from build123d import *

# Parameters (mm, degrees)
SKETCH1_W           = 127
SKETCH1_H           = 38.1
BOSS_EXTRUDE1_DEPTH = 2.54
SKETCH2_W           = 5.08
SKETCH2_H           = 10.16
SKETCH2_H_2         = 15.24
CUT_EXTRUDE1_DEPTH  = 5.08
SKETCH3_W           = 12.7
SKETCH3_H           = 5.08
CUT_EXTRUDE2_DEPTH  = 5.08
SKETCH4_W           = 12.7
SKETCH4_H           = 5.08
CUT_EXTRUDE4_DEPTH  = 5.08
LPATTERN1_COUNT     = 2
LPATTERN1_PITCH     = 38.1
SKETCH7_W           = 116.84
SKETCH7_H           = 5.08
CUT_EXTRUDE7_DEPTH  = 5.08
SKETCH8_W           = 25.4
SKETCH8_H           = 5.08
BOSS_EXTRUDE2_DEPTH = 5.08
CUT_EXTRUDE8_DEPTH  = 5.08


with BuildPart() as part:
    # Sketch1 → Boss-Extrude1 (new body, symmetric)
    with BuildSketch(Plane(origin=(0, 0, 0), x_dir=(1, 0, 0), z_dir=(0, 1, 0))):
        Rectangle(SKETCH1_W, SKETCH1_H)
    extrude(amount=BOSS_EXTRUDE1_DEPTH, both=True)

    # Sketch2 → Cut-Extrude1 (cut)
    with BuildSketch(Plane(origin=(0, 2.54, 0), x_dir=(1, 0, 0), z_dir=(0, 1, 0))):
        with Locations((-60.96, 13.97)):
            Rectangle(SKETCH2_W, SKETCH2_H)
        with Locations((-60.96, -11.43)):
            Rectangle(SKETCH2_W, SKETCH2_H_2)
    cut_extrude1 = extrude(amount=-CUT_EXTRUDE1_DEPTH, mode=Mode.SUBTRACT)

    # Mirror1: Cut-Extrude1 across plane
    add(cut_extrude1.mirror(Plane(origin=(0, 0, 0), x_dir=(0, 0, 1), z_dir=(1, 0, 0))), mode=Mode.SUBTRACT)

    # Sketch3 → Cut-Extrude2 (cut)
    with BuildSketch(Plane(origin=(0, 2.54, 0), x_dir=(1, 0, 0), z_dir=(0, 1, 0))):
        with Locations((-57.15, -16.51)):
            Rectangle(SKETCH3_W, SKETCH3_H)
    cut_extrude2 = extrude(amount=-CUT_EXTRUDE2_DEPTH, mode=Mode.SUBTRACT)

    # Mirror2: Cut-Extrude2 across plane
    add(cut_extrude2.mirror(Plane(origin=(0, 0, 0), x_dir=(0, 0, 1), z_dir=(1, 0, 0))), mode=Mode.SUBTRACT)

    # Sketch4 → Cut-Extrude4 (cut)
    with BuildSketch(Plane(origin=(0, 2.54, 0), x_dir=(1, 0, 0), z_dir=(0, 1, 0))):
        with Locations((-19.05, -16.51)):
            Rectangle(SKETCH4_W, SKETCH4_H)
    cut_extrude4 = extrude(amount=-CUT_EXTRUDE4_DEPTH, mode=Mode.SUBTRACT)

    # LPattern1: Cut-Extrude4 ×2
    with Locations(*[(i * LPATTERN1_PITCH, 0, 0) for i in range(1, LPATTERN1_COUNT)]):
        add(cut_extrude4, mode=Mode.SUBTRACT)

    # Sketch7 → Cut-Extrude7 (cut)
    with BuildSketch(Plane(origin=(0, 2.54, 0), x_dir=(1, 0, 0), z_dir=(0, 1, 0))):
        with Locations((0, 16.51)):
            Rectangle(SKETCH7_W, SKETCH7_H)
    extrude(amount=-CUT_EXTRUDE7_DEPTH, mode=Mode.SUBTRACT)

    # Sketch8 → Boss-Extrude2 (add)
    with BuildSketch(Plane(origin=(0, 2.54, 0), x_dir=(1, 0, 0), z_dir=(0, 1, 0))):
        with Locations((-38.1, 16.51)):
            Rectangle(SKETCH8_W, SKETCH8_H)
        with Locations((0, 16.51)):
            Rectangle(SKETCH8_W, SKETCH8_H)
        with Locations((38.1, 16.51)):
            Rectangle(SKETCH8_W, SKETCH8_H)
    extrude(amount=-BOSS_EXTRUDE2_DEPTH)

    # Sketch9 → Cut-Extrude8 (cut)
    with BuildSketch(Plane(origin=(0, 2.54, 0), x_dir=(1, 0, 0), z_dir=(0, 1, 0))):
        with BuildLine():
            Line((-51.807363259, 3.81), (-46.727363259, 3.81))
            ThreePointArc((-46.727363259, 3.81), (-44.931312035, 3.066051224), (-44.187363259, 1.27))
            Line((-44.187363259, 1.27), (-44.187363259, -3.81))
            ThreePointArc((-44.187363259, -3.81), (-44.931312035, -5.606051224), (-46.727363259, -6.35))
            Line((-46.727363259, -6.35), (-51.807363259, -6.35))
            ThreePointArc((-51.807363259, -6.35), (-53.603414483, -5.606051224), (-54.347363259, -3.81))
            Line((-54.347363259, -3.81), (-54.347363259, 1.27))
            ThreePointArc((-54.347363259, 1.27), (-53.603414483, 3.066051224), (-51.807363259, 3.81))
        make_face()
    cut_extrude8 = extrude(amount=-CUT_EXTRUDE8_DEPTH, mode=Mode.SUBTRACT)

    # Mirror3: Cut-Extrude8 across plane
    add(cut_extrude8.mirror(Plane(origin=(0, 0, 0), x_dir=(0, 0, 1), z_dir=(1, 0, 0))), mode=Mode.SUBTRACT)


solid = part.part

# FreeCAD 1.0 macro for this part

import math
import FreeCAD as App
import Part
import Sketcher

V = App.Vector
Q = App.Units.Quantity

doc = App.newDocument("Part")
body = doc.addObject("PartDesign::Body", "Body")

sketch1 = body.newObject("Sketcher::SketchObject", "Sketch")
sketch1.AttachmentSupport = (doc.getObject("XZ_Plane"), [""])
sketch1.MapMode = "FlatFace"
sketch1.addGeometry(Part.LineSegment(V(-64, -19, 0), V(-64, 19, 0)), False)
sketch1.addGeometry(Part.LineSegment(V(-64, 19, 0), V(64, 19, 0)), False)
sketch1.addGeometry(Part.LineSegment(V(64, 19, 0), V(64, -19, 0)), False)
sketch1.addGeometry(Part.LineSegment(V(64, -19, 0), V(-64, -19, 0)), False)
sketch1.addConstraint(Sketcher.Constraint("Coincident", 0, 2, 1, 1))
sketch1.addConstraint(Sketcher.Constraint("Coincident", 1, 2, 2, 1))
sketch1.addConstraint(Sketcher.Constraint("Coincident", 2, 2, 3, 1))
sketch1.addConstraint(Sketcher.Constraint("Coincident", 3, 2, 0, 1))
sketch1.addConstraint(Sketcher.Constraint("Vertical", 0))
sketch1.addConstraint(Sketcher.Constraint("Horizontal", 1))
sketch1.addConstraint(Sketcher.Constraint("Vertical", 2))
sketch1.addConstraint(Sketcher.Constraint("Horizontal", 3))
sketch1.addConstraint(Sketcher.Constraint("Symmetric", 0, 2, 2, 2, -1, 1))
sketch1.addConstraint(Sketcher.Constraint("DistanceX", 1, 1, 1, 2, Q("5 in")))
sketch1.addConstraint(Sketcher.Constraint("DistanceY", 0, 1, 0, 2, Q("1.5 in")))
pad1 = body.newObject("PartDesign::Pad", "Pad")
pad1.Profile = sketch1
pad1.Length = Q("0.2 in")
pad1.Midplane = True

sketch2 = body.newObject("Sketcher::SketchObject", "Sketch001")
sketch2.AttachmentSupport = (doc.getObject("XZ_Plane"), [""])
sketch2.MapMode = "FlatFace"
sketch2.AttachmentOffset = App.Placement(V(0, 0, -0.1 * 25.4), App.Rotation())
sketch2.addGeometry(Part.LineSegment(V(-64, -19, 0), V(-64, -9, 0)), False)
sketch2.addGeometry(Part.LineSegment(V(-64, -9, 0), V(-58, -9, 0)), False)
sketch2.addGeometry(Part.LineSegment(V(-58, -9, 0), V(-58, -19, 0)), False)
sketch2.addGeometry(Part.LineSegment(V(-58, -19, 0), V(-64, -19, 0)), False)
sketch2.addGeometry(Part.LineSegment(V(-64, 4, 0), V(-64, 19, 0)), False)
sketch2.addGeometry(Part.LineSegment(V(-64, 19, 0), V(-58, 19, 0)), False)
sketch2.addGeometry(Part.LineSegment(V(-58, 19, 0), V(-58, 4, 0)), False)
sketch2.addGeometry(Part.LineSegment(V(-58, 4, 0), V(-64, 4, 0)), False)
sketch2.addConstraint(Sketcher.Constraint("Coincident", 0, 2, 1, 1))
sketch2.addConstraint(Sketcher.Constraint("Coincident", 1, 2, 2, 1))
sketch2.addConstraint(Sketcher.Constraint("Coincident", 2, 2, 3, 1))
sketch2.addConstraint(Sketcher.Constraint("Coincident", 3, 2, 0, 1))
sketch2.addConstraint(Sketcher.Constraint("Coincident", 4, 2, 5, 1))
sketch2.addConstraint(Sketcher.Constraint("Coincident", 5, 2, 6, 1))
sketch2.addConstraint(Sketcher.Constraint("Coincident", 6, 2, 7, 1))
sketch2.addConstraint(Sketcher.Constraint("Coincident", 7, 2, 4, 1))
sketch2.addConstraint(Sketcher.Constraint("Vertical", 0))
sketch2.addConstraint(Sketcher.Constraint("Horizontal", 1))
sketch2.addConstraint(Sketcher.Constraint("Vertical", 2))
sketch2.addConstraint(Sketcher.Constraint("Horizontal", 3))
sketch2.addConstraint(Sketcher.Constraint("Vertical", 4))
sketch2.addConstraint(Sketcher.Constraint("Horizontal", 5))
sketch2.addConstraint(Sketcher.Constraint("Vertical", 6))
sketch2.addConstraint(Sketcher.Constraint("Horizontal", 7))
sketch2.addConstraint(Sketcher.Constraint("Symmetric", 3, 2, 4, 2, -1))
sketch2.addConstraint(Sketcher.Constraint("Vertical", 2, 2, 5, 2))
sketch2.addConstraint(Sketcher.Constraint("DistanceX", 1, 1, 1, 2, Q("0.2 in")))
sketch2.addConstraint(Sketcher.Constraint("DistanceY", 0, 1, 0, 2, Q("0.4 in")))
sketch2.addConstraint(Sketcher.Constraint("DistanceY", 4, 1, 4, 2, Q("0.6 in")))
sketch2.addConstraint(Sketcher.Constraint("DistanceX", 0, 2, -1, 1, Q("2.5 in")))
sketch2.addConstraint(Sketcher.Constraint("DistanceY", 0, 2, 4, 2, Q("1.1 in")))
pocket1 = body.newObject("PartDesign::Pocket", "Pocket")
pocket1.Profile = sketch2
pocket1.Length = Q("0.2 in")
pocket1.Reversed = True
doc.recompute()

mirrored = body.newObject("PartDesign::Mirrored", "Mirrored")
mirrored.Originals = [pocket1]
mirrored.MirrorPlane = (doc.getObject("YZ_Plane"), [""])
body.Tip = mirrored

sketch3 = body.newObject("Sketcher::SketchObject", "Sketch002")
sketch3.AttachmentSupport = (doc.getObject("XZ_Plane"), [""])
sketch3.MapMode = "FlatFace"
sketch3.AttachmentOffset = App.Placement(V(0, 0, -0.1 * 25.4), App.Rotation())
sketch3.addGeometry(Part.LineSegment(V(-64, 14, 0), V(-64, 19, 0)), False)
sketch3.addGeometry(Part.LineSegment(V(-64, 19, 0), V(-51, 19, 0)), False)
sketch3.addGeometry(Part.LineSegment(V(-51, 19, 0), V(-51, 14, 0)), False)
sketch3.addGeometry(Part.LineSegment(V(-51, 14, 0), V(-64, 14, 0)), False)
sketch3.addConstraint(Sketcher.Constraint("Coincident", 0, 2, 1, 1))
sketch3.addConstraint(Sketcher.Constraint("Coincident", 1, 2, 2, 1))
sketch3.addConstraint(Sketcher.Constraint("Coincident", 2, 2, 3, 1))
sketch3.addConstraint(Sketcher.Constraint("Coincident", 3, 2, 0, 1))
sketch3.addConstraint(Sketcher.Constraint("Vertical", 0))
sketch3.addConstraint(Sketcher.Constraint("Horizontal", 1))
sketch3.addConstraint(Sketcher.Constraint("Vertical", 2))
sketch3.addConstraint(Sketcher.Constraint("Horizontal", 3))
sketch3.addConstraint(Sketcher.Constraint("DistanceX", 1, 1, 1, 2, Q("0.5 in")))
sketch3.addConstraint(Sketcher.Constraint("DistanceY", 0, 1, 0, 2, Q("0.2 in")))
sketch3.addConstraint(Sketcher.Constraint("DistanceX", 1, 2, -1, 1, Q("2 in")))
sketch3.addConstraint(Sketcher.Constraint("DistanceY", -1, 1, 0, 2, Q("0.75 in")))
pocket2 = body.newObject("PartDesign::Pocket", "Pocket001")
pocket2.Profile = sketch3
pocket2.Length = Q("0.2 in")
pocket2.Reversed = True
doc.recompute()

mirrored2 = body.newObject("PartDesign::Mirrored", "Mirrored001")
mirrored2.Originals = [pocket2]
mirrored2.MirrorPlane = (doc.getObject("YZ_Plane"), [""])
body.Tip = mirrored2

sketch4 = body.newObject("Sketcher::SketchObject", "Sketch003")
sketch4.AttachmentSupport = (doc.getObject("XZ_Plane"), [""])
sketch4.MapMode = "FlatFace"
sketch4.AttachmentOffset = App.Placement(V(0, 0, -0.1 * 25.4), App.Rotation())
sketch4.addGeometry(Part.LineSegment(V(-25, 14, 0), V(-25, 19, 0)), False)
sketch4.addGeometry(Part.LineSegment(V(-25, 19, 0), V(-13, 19, 0)), False)
sketch4.addGeometry(Part.LineSegment(V(-13, 19, 0), V(-13, 14, 0)), False)
sketch4.addGeometry(Part.LineSegment(V(-13, 14, 0), V(-25, 14, 0)), False)
sketch4.addConstraint(Sketcher.Constraint("Coincident", 0, 2, 1, 1))
sketch4.addConstraint(Sketcher.Constraint("Coincident", 1, 2, 2, 1))
sketch4.addConstraint(Sketcher.Constraint("Coincident", 2, 2, 3, 1))
sketch4.addConstraint(Sketcher.Constraint("Coincident", 3, 2, 0, 1))
sketch4.addConstraint(Sketcher.Constraint("Vertical", 0))
sketch4.addConstraint(Sketcher.Constraint("Horizontal", 1))
sketch4.addConstraint(Sketcher.Constraint("Vertical", 2))
sketch4.addConstraint(Sketcher.Constraint("Horizontal", 3))
sketch4.addConstraint(Sketcher.Constraint("DistanceX", 1, 1, 1, 2, Q("0.5 in")))
sketch4.addConstraint(Sketcher.Constraint("DistanceY", 0, 1, 0, 2, Q("0.2 in")))
sketch4.addConstraint(Sketcher.Constraint("DistanceX", 0, 2, -1, 1, Q("1 in")))
sketch4.addConstraint(Sketcher.Constraint("DistanceY", -1, 1, 0, 2, Q("0.75 in")))
pocket3 = body.newObject("PartDesign::Pocket", "Pocket002")
pocket3.Profile = sketch4
pocket3.Length = Q("0.2 in")
pocket3.Reversed = True
doc.recompute()

linearpattern = body.newObject("PartDesign::LinearPattern", "LinearPattern")
linearpattern.Originals = [pocket3]
linearpattern.Direction = (doc.getObject("X_Axis"), [""])
linearpattern.Mode = "offset"
linearpattern.Offset = Q("1.5 in")
linearpattern.Occurrences = 2
body.Tip = linearpattern

sketch5 = body.newObject("Sketcher::SketchObject", "Sketch004")
sketch5.AttachmentSupport = (doc.getObject("XZ_Plane"), [""])
sketch5.MapMode = "FlatFace"
sketch5.AttachmentOffset = App.Placement(V(0, 0, -0.1 * 25.4), App.Rotation())
sketch5.addGeometry(Part.LineSegment(V(-58, -19, 0), V(-58, -14, 0)), False)
sketch5.addGeometry(Part.LineSegment(V(-58, -14, 0), V(58, -14, 0)), False)
sketch5.addGeometry(Part.LineSegment(V(58, -14, 0), V(58, -19, 0)), False)
sketch5.addGeometry(Part.LineSegment(V(58, -19, 0), V(-58, -19, 0)), False)
sketch5.addConstraint(Sketcher.Constraint("Coincident", 0, 2, 1, 1))
sketch5.addConstraint(Sketcher.Constraint("Coincident", 1, 2, 2, 1))
sketch5.addConstraint(Sketcher.Constraint("Coincident", 2, 2, 3, 1))
sketch5.addConstraint(Sketcher.Constraint("Coincident", 3, 2, 0, 1))
sketch5.addConstraint(Sketcher.Constraint("Vertical", 0))
sketch5.addConstraint(Sketcher.Constraint("Horizontal", 1))
sketch5.addConstraint(Sketcher.Constraint("Vertical", 2))
sketch5.addConstraint(Sketcher.Constraint("Horizontal", 3))
sketch5.addConstraint(Sketcher.Constraint("DistanceX", 1, 1, 1, 2, Q("4.6 in")))
sketch5.addConstraint(Sketcher.Constraint("DistanceY", 0, 1, 0, 2, Q("0.2 in")))
sketch5.addConstraint(Sketcher.Constraint("DistanceX", 0, 2, -1, 1, Q("2.3 in")))
sketch5.addConstraint(Sketcher.Constraint("DistanceY", 0, 2, -1, 1, Q("0.55 in")))
pocket4 = body.newObject("PartDesign::Pocket", "Pocket003")
pocket4.Profile = sketch5
pocket4.Length = Q("0.2 in")
pocket4.Reversed = True

sketch6 = body.newObject("Sketcher::SketchObject", "Sketch005")
sketch6.AttachmentSupport = (doc.getObject("XZ_Plane"), [""])
sketch6.MapMode = "FlatFace"
sketch6.AttachmentOffset = App.Placement(V(0, 0, -0.1 * 25.4), App.Rotation())
sketch6.addGeometry(Part.LineSegment(V(-51, -19, 0), V(-51, -14, 0)), False)
sketch6.addGeometry(Part.LineSegment(V(-51, -14, 0), V(-25, -14, 0)), False)
sketch6.addGeometry(Part.LineSegment(V(-25, -14, 0), V(-25, -19, 0)), False)
sketch6.addGeometry(Part.LineSegment(V(-25, -19, 0), V(-51, -19, 0)), False)
sketch6.addGeometry(Part.LineSegment(V(-13, -19, 0), V(-13, -14, 0)), False)
sketch6.addGeometry(Part.LineSegment(V(-13, -14, 0), V(13, -14, 0)), False)
sketch6.addGeometry(Part.LineSegment(V(13, -14, 0), V(13, -19, 0)), False)
sketch6.addGeometry(Part.LineSegment(V(13, -19, 0), V(-13, -19, 0)), False)
sketch6.addGeometry(Part.LineSegment(V(25, -19, 0), V(25, -14, 0)), False)
sketch6.addGeometry(Part.LineSegment(V(25, -14, 0), V(51, -14, 0)), False)
sketch6.addGeometry(Part.LineSegment(V(51, -14, 0), V(51, -19, 0)), False)
sketch6.addGeometry(Part.LineSegment(V(51, -19, 0), V(25, -19, 0)), False)
sketch6.addConstraint(Sketcher.Constraint("Coincident", 0, 2, 1, 1))
sketch6.addConstraint(Sketcher.Constraint("Coincident", 1, 2, 2, 1))
sketch6.addConstraint(Sketcher.Constraint("Coincident", 2, 2, 3, 1))
sketch6.addConstraint(Sketcher.Constraint("Coincident", 3, 2, 0, 1))
sketch6.addConstraint(Sketcher.Constraint("Coincident", 4, 2, 5, 1))
sketch6.addConstraint(Sketcher.Constraint("Coincident", 5, 2, 6, 1))
sketch6.addConstraint(Sketcher.Constraint("Coincident", 6, 2, 7, 1))
sketch6.addConstraint(Sketcher.Constraint("Coincident", 7, 2, 4, 1))
sketch6.addConstraint(Sketcher.Constraint("Coincident", 8, 2, 9, 1))
sketch6.addConstraint(Sketcher.Constraint("Coincident", 9, 2, 10, 1))
sketch6.addConstraint(Sketcher.Constraint("Coincident", 10, 2, 11, 1))
sketch6.addConstraint(Sketcher.Constraint("Coincident", 11, 2, 8, 1))
sketch6.addConstraint(Sketcher.Constraint("Vertical", 0))
sketch6.addConstraint(Sketcher.Constraint("Horizontal", 1))
sketch6.addConstraint(Sketcher.Constraint("Vertical", 2))
sketch6.addConstraint(Sketcher.Constraint("Horizontal", 3))
sketch6.addConstraint(Sketcher.Constraint("Vertical", 4))
sketch6.addConstraint(Sketcher.Constraint("Horizontal", 5))
sketch6.addConstraint(Sketcher.Constraint("Vertical", 6))
sketch6.addConstraint(Sketcher.Constraint("Horizontal", 7))
sketch6.addConstraint(Sketcher.Constraint("Vertical", 8))
sketch6.addConstraint(Sketcher.Constraint("Horizontal", 9))
sketch6.addConstraint(Sketcher.Constraint("Vertical", 10))
sketch6.addConstraint(Sketcher.Constraint("Horizontal", 11))
sketch6.addConstraint(Sketcher.Constraint("Symmetric", 1, 2, 8, 2, -2))
sketch6.addConstraint(Sketcher.Constraint("Symmetric", 3, 2, 10, 2, -2))
sketch6.addConstraint(Sketcher.Constraint("Horizontal", 1, 2, 4, 2))
sketch6.addConstraint(Sketcher.Constraint("Horizontal", 3, 2, 6, 2))
sketch6.addConstraint(Sketcher.Constraint("Equal", 3, 5))
sketch6.addConstraint(Sketcher.Constraint("DistanceX", 1, 1, 1, 2, Q("1 in")))
sketch6.addConstraint(Sketcher.Constraint("DistanceY", 0, 1, 0, 2, Q("0.2 in")))
sketch6.addConstraint(Sketcher.Constraint("DistanceX", 0, 2, -1, 1, Q("2 in")))
sketch6.addConstraint(Sketcher.Constraint("DistanceX", 4, 2, -1, 1, Q("0.5 in")))
sketch6.addConstraint(Sketcher.Constraint("DistanceY", 0, 2, -1, 1, Q("0.55 in")))
pad2 = body.newObject("PartDesign::Pad", "Pad001")
pad2.Profile = sketch6
pad2.Length = Q("0.2 in")

sketch7 = body.newObject("Sketcher::SketchObject", "Sketch006")
sketch7.AttachmentSupport = (doc.getObject("XZ_Plane"), [""])
sketch7.MapMode = "FlatFace"
sketch7.AttachmentOffset = App.Placement(V(0, 0, -0.1 * 25.4), App.Rotation())
sketch7.addGeometry(Part.LineSegment(V(-46.7, -3.8, 0), V(-51.8, -3.8, 0)), False)
sketch7.addGeometry(Part.ArcOfCircle(Part.Circle(V(-51.8, -1.3, 0), V(0, 0, 1), 2.5), math.radians(-180), math.radians(-90)), False)
sketch7.addGeometry(Part.LineSegment(V(-54.3, -1.3, 0), V(-54.3, 3.8, 0)), False)
sketch7.addGeometry(Part.ArcOfCircle(Part.Circle(V(-51.8, 3.8, 0), V(0, 0, 1), 2.5), math.radians(90), math.radians(180)), False)
sketch7.addGeometry(Part.LineSegment(V(-51.8, 6.3, 0), V(-46.7, 6.3, 0)), False)
sketch7.addGeometry(Part.ArcOfCircle(Part.Circle(V(-46.7, 3.8, 0), V(0, 0, 1), 2.5), math.radians(0), math.radians(90)), False)
sketch7.addGeometry(Part.LineSegment(V(-44.2, 3.8, 0), V(-44.2, -1.3, 0)), False)
sketch7.addGeometry(Part.ArcOfCircle(Part.Circle(V(-46.7, -1.3, 0), V(0, 0, 1), 2.5), math.radians(-90), math.radians(0)), False)
sketch7.addConstraint(Sketcher.Constraint("Tangent", 0, 2, 1, 2))
sketch7.addConstraint(Sketcher.Constraint("Tangent", 1, 1, 2, 1))
sketch7.addConstraint(Sketcher.Constraint("Tangent", 2, 2, 3, 2))
sketch7.addConstraint(Sketcher.Constraint("Tangent", 3, 1, 4, 1))
sketch7.addConstraint(Sketcher.Constraint("Tangent", 4, 2, 5, 2))
sketch7.addConstraint(Sketcher.Constraint("Tangent", 5, 1, 6, 1))
sketch7.addConstraint(Sketcher.Constraint("Tangent", 6, 2, 7, 2))
sketch7.addConstraint(Sketcher.Constraint("Tangent", 7, 1, 0, 1))
sketch7.addConstraint(Sketcher.Constraint("Horizontal", 0))
sketch7.addConstraint(Sketcher.Constraint("Vertical", 2))
sketch7.addConstraint(Sketcher.Constraint("Horizontal", 4))
sketch7.addConstraint(Sketcher.Constraint("Vertical", 6))
sketch7.addConstraint(Sketcher.Constraint("Equal", 1, 3))
sketch7.addConstraint(Sketcher.Constraint("Equal", 3, 5))
sketch7.addConstraint(Sketcher.Constraint("Equal", 5, 7))
sketch7.addConstraint(Sketcher.Constraint("Equal", 4, 2))
sketch7.addConstraint(Sketcher.Constraint("Radius", 1, Q("0.1 in")))
sketch7.addConstraint(Sketcher.Constraint("DistanceX", 0, 2, 0, 1, Q("0.2 in")))
sketch7.addConstraint(Sketcher.Constraint("DistanceY", 1, 3, -1, 1, Q("0.05 in")))
sketch7.addConstraint(Sketcher.Constraint("DistanceX", 1, 3, -1, 1, 51.807363))
pocket5 = body.newObject("PartDesign::Pocket", "Pocket004")
pocket5.Profile = sketch7
pocket5.Length = Q("0.2 in")
pocket5.Reversed = True
doc.recompute()

mirrored3 = body.newObject("PartDesign::Mirrored", "Mirrored002")
mirrored3.Originals = [pocket5]
mirrored3.MirrorPlane = (doc.getObject("YZ_Plane"), [""])
body.Tip = mirrored3

doc.recompute()
